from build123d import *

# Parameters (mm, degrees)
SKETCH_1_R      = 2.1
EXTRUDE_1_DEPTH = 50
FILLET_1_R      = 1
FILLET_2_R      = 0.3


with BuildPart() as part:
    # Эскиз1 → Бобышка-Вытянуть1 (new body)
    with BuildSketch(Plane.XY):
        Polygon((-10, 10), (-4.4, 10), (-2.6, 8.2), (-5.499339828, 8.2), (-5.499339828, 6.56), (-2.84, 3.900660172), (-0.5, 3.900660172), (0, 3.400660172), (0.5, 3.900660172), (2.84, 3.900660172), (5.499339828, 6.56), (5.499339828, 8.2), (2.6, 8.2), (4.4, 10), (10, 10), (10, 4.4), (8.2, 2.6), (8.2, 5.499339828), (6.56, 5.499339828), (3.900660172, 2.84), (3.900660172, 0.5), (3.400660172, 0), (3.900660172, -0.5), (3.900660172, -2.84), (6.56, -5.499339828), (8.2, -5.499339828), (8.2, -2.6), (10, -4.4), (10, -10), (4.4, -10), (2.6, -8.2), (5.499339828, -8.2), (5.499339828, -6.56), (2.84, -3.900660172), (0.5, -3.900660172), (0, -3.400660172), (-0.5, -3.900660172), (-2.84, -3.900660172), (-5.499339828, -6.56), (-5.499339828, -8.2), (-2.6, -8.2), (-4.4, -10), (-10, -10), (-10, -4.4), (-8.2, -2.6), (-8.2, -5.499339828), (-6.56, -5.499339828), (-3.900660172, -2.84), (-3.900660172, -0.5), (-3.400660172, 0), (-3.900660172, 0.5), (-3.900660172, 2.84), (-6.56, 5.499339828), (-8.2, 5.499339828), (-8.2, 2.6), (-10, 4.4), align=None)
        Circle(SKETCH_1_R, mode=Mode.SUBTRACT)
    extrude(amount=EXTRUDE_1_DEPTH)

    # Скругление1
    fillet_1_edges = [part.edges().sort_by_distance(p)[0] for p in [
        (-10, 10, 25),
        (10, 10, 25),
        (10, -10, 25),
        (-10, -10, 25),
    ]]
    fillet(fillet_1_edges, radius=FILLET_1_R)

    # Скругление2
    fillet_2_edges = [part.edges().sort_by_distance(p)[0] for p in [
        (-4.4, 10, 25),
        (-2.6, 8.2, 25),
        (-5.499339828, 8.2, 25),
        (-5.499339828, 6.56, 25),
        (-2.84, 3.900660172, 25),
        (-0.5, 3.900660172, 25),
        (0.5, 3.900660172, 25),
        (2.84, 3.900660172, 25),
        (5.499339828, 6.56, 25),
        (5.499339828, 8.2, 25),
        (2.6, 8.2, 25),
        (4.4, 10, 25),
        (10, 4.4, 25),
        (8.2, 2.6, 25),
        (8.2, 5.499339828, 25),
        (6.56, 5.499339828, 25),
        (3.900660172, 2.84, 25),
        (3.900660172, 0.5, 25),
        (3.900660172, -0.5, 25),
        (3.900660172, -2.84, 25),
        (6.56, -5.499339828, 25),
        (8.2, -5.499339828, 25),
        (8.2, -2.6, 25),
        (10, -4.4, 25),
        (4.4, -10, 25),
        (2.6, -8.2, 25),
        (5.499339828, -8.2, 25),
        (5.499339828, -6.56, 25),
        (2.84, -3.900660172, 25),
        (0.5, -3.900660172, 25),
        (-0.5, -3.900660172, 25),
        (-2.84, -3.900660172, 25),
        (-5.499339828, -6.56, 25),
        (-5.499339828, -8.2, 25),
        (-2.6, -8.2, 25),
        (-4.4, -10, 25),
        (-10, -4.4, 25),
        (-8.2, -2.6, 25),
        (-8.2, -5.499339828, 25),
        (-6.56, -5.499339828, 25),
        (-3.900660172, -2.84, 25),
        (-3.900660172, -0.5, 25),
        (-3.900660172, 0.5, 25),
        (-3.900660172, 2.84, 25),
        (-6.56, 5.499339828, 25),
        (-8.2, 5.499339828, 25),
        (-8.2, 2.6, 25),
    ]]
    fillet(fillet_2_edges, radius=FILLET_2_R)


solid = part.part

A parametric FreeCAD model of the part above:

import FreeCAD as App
import Part
import Sketcher

V = App.Vector
Q = App.Units.Quantity


def edges_at(feature, points):
    """Names of the edges that pass closest to the given points."""
    edges = feature.Shape.Edges
    near = lambda p: min(range(len(edges)), key=lambda i: edges[i].distToShape(Part.Vertex(*p))[0])
    return sorted({f"Edge{near(p) + 1}" for p in points})


def add_polygon(sketch, points):
    """Adds a closed chain of lines whose ends are joined by coincident constraints."""
    first, n = sketch.GeometryCount, len(points)
    for a, b in zip(points, points[1:] + points[:1]):
        sketch.addGeometry(Part.LineSegment(App.Vector(*a, 0), App.Vector(*b, 0)), False)
    for i in range(n):
        sketch.addConstraint(Sketcher.Constraint("Coincident", first + i, 2, first + (i + 1) % n, 1))

doc = App.newDocument("Part")
body = doc.addObject("PartDesign::Body", "Body")

# Sketch on XY plane
sketch1 = doc.addObject("Sketcher::SketchObject", "Sketch")
body.addObject(sketch1)
sketch1.AttachmentSupport = (doc.XY_Plane, [""])
sketch1.MapMode = "FlatFace"
add_polygon(sketch1, [(-4.4, 10), (-10, 10), (-10, 4.4), (-8.2, 2.6), (-8.2, 5.5), (-6.6, 5.5), (-3.9, 2.8), (-3.9, 0.5), (-3.4, 0), (-3.9, -0.5), (-3.9, -2.8), (-6.6, -5.5), (-8.2, -5.5), (-8.2, -2.6), (-10, -4.4), (-10, -10), (-4.4, -10), (-2.6, -8.2), (-5.5, -8.2), (-5.5, -6.6), (-2.8, -3.9), (-0.5, -3.9), (0, -3.4), (0.5, -3.9), (2.8, -3.9), (5.5, -6.6), (5.5, -8.2), (2.6, -8.2), (4.4, -10), (10, -10), (10, -4.4), (8.2, -2.6), (8.2, -5.5), (6.6, -5.5), (3.9, -2.8), (3.9, -0.5), (3.4, 0), (3.9, 0.5), (3.9, 2.8), (6.6, 5.5), (8.2, 5.5), (8.2, 2.6), (10, 4.4), (10, 10), (4.4, 10), (2.6, 8.2), (5.5, 8.2), (5.5, 6.6), (2.8, 3.9), (0.5, 3.9), (0, 3.4), (-0.5, 3.9), (-2.8, 3.9), (-5.5, 6.6), (-5.5, 8.2), (-2.6, 8.2)])  # lines 0-55
sketch1.addGeometry(Part.Circle(V(0, 0, 0), V(0, 0, 1), 2.1), False)  # 56
sketch1.addConstraint([
    Sketcher.Constraint("Horizontal", 0),
    Sketcher.Constraint("Vertical", 1),
    Sketcher.Constraint("Vertical", 3),
    Sketcher.Constraint("Horizontal", 4),
    Sketcher.Constraint("Vertical", 6),
    Sketcher.Constraint("Vertical", 9),
    Sketcher.Constraint("Horizontal", 11),
    Sketcher.Constraint("Vertical", 12),
    Sketcher.Constraint("Vertical", 14),
    Sketcher.Constraint("Horizontal", 15),
    Sketcher.Constraint("Horizontal", 17),
    Sketcher.Constraint("Vertical", 18),
    Sketcher.Constraint("Horizontal", 20),
    Sketcher.Constraint("Horizontal", 23),
    Sketcher.Constraint("Vertical", 25),
    Sketcher.Constraint("Horizontal", 26),
    Sketcher.Constraint("Horizontal", 28),
    Sketcher.Constraint("Vertical", 29),
    Sketcher.Constraint("Vertical", 31),
    Sketcher.Constraint("Horizontal", 32),
    Sketcher.Constraint("Vertical", 34),
    Sketcher.Constraint("Vertical", 37),
    Sketcher.Constraint("Horizontal", 39),
    Sketcher.Constraint("Vertical", 40),
    Sketcher.Constraint("Vertical", 42),
    Sketcher.Constraint("Horizontal", 43),
    Sketcher.Constraint("Horizontal", 45),
    Sketcher.Constraint("Vertical", 46),
    Sketcher.Constraint("Horizontal", 48),
    Sketcher.Constraint("Horizontal", 51),
    Sketcher.Constraint("Vertical", 53),
    Sketcher.Constraint("Horizontal", 54),
    Sketcher.Constraint("Coincident", 56, 3, -1, 1),
    Sketcher.Constraint("Symmetric", 0, 2, 28, 2, -1, 1),
    Sketcher.Constraint("Symmetric", 2, 2, 30, 2, -1, 1),
    Sketcher.Constraint("Symmetric", 4, 2, 32, 2, -1, 1),
    Sketcher.Constraint("Symmetric", 5, 2, 33, 2, -1, 1),
    Sketcher.Constraint("Symmetric", 7, 2, 35, 2, -1, 1),
    Sketcher.Constraint("Symmetric", 8, 2, 36, 2, -1, 1),
    Sketcher.Constraint("Symmetric", 10, 2, 38, 2, -1, 1),
    Sketcher.Constraint("Symmetric", 12, 2, 40, 2, -1, 1),
    Sketcher.Constraint("Symmetric", 13, 2, 41, 2, -1, 1),
    Sketcher.Constraint("Symmetric", 15, 2, 43, 2, -1, 1),
    Sketcher.Constraint("Symmetric", 16, 2, 44, 2, -1, 1),
    Sketcher.Constraint("Symmetric", 18, 2, 46, 2, -1, 1),
    Sketcher.Constraint("Symmetric", 19, 2, 47, 2, -1, 1),
    Sketcher.Constraint("Symmetric", 21, 2, 49, 2, -1, 1),
    Sketcher.Constraint("Symmetric", 22, 2, 50, 2, -1, 1),
    Sketcher.Constraint("Symmetric", 24, 2, 52, 2, -1, 1),
    Sketcher.Constraint("Symmetric", 26, 2, 54, 2, -1, 1),
    Sketcher.Constraint("Symmetric", 20, 2, 22, 2, -2),
    Sketcher.Constraint("Symmetric", 18, 2, 24, 2, -2),
    Sketcher.Constraint("Symmetric", 16, 2, 26, 2, -2),
    Sketcher.Constraint("Symmetric", 15, 2, 27, 2, -2),
    Sketcher.Constraint("Symmetric", 13, 2, 29, 2, -2),
    Sketcher.Constraint("Symmetric", 12, 2, 30, 2, -2),
    Sketcher.Constraint("Symmetric", 10, 2, 32, 2, -2),
    Sketcher.Constraint("Symmetric", 9, 2, 33, 2, -2),
    Sketcher.Constraint("PointOnObject", 7, 2, -1),
    Sketcher.Constraint("PointOnObject", 21, 2, -2),
    Sketcher.Constraint("Parallel", 2, 5),
    Sketcher.Constraint("Parallel", 5, 7),
    Sketcher.Constraint("Perpendicular", 7, 8),
    Sketcher.Constraint("Parallel", 8, 10),
    Sketcher.Constraint("Parallel", 10, 13),
    Sketcher.Constraint("Parallel", 13, 16),
    Sketcher.Constraint("Parallel", 16, 19),
    Sketcher.Constraint("Parallel", 19, 21),
    Sketcher.Constraint("Parallel", 22, 24),
    Sketcher.Constraint("Parallel", 33, 35),
    Sketcher.Constraint("Parallel", 36, 38),
    Sketcher.Constraint("Parallel", 47, 49),
    Sketcher.Constraint("Parallel", 50, 52),
    Sketcher.Constraint("Parallel", 52, 55),
    Sketcher.Constraint("Equal", 43, 1),
    Sketcher.Constraint("Equal", 54, 3),
    Sketcher.Constraint("Equal", 51, 6),
    Sketcher.Constraint("Equal", 39, 18),
    Sketcher.Constraint("Equal", 13, 16),
    Sketcher.Constraint("Equal", 10, 19),
    Sketcher.Constraint("Equal", 8, 21),
    Sketcher.Constraint("Diameter", 56, Q("4.2 mm")),
    Sketcher.Constraint("DistanceX", 0, 2, 0, 1, Q("5.6 mm")),
    Sketcher.Constraint("DistanceX", 0, 2, -1, 1, Q("10 mm")),
    Sketcher.Constraint("DistanceY", 8, 2, 6, 2, Q("1 mm")),
    Sketcher.Constraint("DistanceY", 13, 2, 2, 2, Q("7 mm")),
    Sketcher.Constraint("DistanceX", 4, 1, 4, 2, Q("1.64 mm")),
    Sketcher.Constraint("DistanceX", 20, 1, 20, 2, Q("2.34 mm")),
    Sketcher.Constraint("DistanceX", 17, 2, 17, 1, Q("2.89934 mm")),
])
pad1 = doc.addObject("PartDesign::Pad", "Pad")
body.addObject(pad1)
pad1.Profile = sketch1
pad1.Length = 50
doc.recompute()

fillet = doc.addObject("PartDesign::Fillet", "Fillet")
body.addObject(fillet)
fillet.Base = (pad1, edges_at(pad1, [
    (-10, 10, 25),
    (10, 10, 25),
    (10, -10, 25),
    (-10, -10, 25),
]))
fillet.Radius = 1
doc.recompute()

fillet2 = doc.addObject("PartDesign::Fillet", "Fillet001")
body.addObject(fillet2)
fillet2.Base = (fillet, edges_at(fillet, [
    (-4.4, 10, 25),
    (-2.6, 8.2, 25),
    (-5.499, 8.2, 25),
    (-5.499, 6.56, 25),
    (-2.84, 3.901, 25),
    (-0.5, 3.901, 25),
    (0.5, 3.901, 25),
    (2.84, 3.901, 25),
    (5.499, 6.56, 25),
    (5.499, 8.2, 25),
    (2.6, 8.2, 25),
    (4.4, 10, 25),
    (10, 4.4, 25),
    (8.2, 2.6, 25),
    (8.2, 5.499, 25),
    (6.56, 5.499, 25),
    (3.901, 2.84, 25),
    (3.901, 0.5, 25),
    (3.901, -0.5, 25),
    (3.901, -2.84, 25),
    (6.56, -5.499, 25),
    (8.2, -5.499, 25),
    (8.2, -2.6, 25),
    (10, -4.4, 25),
    (4.4, -10, 25),
    (2.6, -8.2, 25),
    (5.499, -8.2, 25),
    (5.499, -6.56, 25),
    (2.84, -3.901, 25),
    (0.5, -3.901, 25),
    (-0.5, -3.901, 25),
    (-2.84, -3.901, 25),
    (-5.499, -6.56, 25),
    (-5.499, -8.2, 25),
    (-2.6, -8.2, 25),
    (-4.4, -10, 25),
    (-10, -4.4, 25),
    (-8.2, -2.6, 25),
    (-8.2, -5.499, 25),
    (-6.56, -5.499, 25),
    (-3.901, -2.84, 25),
    (-3.901, -0.5, 25),
    (-3.901, 0.5, 25),
    (-3.901, 2.84, 25),
    (-6.56, 5.499, 25),
    (-8.2, 5.499, 25),
    (-8.2, 2.6, 25),
]))
fillet2.Radius = 0.3

doc.recompute()
